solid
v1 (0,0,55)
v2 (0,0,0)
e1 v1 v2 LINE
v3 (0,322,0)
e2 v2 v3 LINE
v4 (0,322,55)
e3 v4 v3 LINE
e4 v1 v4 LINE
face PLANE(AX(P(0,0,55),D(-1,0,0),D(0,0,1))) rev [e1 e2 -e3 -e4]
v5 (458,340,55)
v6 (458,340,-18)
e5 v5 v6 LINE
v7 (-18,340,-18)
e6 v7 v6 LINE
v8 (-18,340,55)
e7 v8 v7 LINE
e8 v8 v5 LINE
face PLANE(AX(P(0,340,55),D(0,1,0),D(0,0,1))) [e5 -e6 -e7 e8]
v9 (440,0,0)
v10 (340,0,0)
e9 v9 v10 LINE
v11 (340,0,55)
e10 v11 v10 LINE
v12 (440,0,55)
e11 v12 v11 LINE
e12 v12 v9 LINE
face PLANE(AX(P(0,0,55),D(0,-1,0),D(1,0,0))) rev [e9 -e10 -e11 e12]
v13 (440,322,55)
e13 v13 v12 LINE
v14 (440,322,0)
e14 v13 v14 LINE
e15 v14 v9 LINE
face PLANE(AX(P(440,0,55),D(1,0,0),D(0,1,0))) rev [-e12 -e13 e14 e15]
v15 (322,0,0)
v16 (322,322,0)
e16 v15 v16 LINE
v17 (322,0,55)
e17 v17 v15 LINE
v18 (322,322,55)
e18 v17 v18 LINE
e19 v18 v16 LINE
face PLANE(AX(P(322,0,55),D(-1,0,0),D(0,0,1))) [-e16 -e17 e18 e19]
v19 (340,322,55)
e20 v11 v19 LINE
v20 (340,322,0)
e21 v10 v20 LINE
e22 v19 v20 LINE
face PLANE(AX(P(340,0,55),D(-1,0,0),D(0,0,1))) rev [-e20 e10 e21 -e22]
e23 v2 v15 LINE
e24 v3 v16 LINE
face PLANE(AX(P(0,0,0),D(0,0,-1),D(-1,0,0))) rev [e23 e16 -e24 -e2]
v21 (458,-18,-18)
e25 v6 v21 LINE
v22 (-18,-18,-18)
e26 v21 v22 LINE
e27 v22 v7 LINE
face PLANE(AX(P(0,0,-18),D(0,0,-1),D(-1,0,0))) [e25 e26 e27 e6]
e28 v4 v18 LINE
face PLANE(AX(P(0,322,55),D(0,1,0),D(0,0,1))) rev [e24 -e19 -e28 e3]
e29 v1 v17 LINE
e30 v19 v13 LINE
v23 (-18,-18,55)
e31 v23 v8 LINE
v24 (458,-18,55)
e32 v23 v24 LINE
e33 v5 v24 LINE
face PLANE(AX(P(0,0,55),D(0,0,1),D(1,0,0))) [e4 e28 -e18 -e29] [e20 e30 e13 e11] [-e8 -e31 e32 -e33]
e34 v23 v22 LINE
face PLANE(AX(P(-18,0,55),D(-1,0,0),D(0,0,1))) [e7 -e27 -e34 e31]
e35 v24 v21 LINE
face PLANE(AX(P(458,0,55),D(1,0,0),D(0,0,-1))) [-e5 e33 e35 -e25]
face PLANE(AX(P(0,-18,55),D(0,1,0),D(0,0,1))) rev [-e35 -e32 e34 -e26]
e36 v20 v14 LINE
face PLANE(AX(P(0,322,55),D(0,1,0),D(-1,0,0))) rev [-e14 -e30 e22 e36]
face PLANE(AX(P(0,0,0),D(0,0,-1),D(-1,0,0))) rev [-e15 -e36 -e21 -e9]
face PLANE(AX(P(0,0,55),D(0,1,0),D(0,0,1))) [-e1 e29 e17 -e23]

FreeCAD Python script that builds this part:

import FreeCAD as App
import Part
import Sketcher

V = App.Vector
Q = App.Units.Quantity


def add_polygon(sketch, points):
    """Adds a closed chain of lines whose ends are joined by coincident constraints."""
    first, n = sketch.GeometryCount, len(points)
    for a, b in zip(points, points[1:] + points[:1]):
        sketch.addGeometry(Part.LineSegment(App.Vector(*a, 0), App.Vector(*b, 0)), False)
    for i in range(n):
        sketch.addConstraint(Sketcher.Constraint("Coincident", first + i, 2, first + (i + 1) % n, 1))

doc = App.newDocument("Part")
body = doc.addObject("PartDesign::Body", "Body")

# Sketch on XY plane
sketch1 = doc.addObject("Sketcher::SketchObject", "Sketch")
body.addObject(sketch1)
sketch1.AttachmentSupport = (doc.XY_Plane, [""])
sketch1.MapMode = "FlatFace"
add_polygon(sketch1, [(-18, -18), (458, -18), (458, 340), (-18, 340)])  # lines 0-3
add_polygon(sketch1, [(322, 0), (0, 0), (0, 322), (322, 322)])  # lines 4-7
add_polygon(sketch1, [(440, 0), (340, 0), (340, 322), (440, 322)])  # lines 8-11
sketch1.addConstraint(Sketcher.Constraint("Horizontal", 0))
sketch1.addConstraint(Sketcher.Constraint("Vertical", 1))
sketch1.addConstraint(Sketcher.Constraint("Horizontal", 2))
sketch1.addConstraint(Sketcher.Constraint("Vertical", 3))
sketch1.addConstraint(Sketcher.Constraint("Horizontal", 4))
sketch1.addConstraint(Sketcher.Constraint("Vertical", 5))
sketch1.addConstraint(Sketcher.Constraint("Horizontal", 6))
sketch1.addConstraint(Sketcher.Constraint("Vertical", 7))
sketch1.addConstraint(Sketcher.Constraint("Horizontal", 8))
sketch1.addConstraint(Sketcher.Constraint("Vertical", 9))
sketch1.addConstraint(Sketcher.Constraint("Horizontal", 10))
sketch1.addConstraint(Sketcher.Constraint("Vertical", 11))
sketch1.addConstraint(Sketcher.Constraint("Coincident", 4, 2, -1, 1))
sketch1.addConstraint(Sketcher.Constraint("PointOnObject", 8, 2, -1))
sketch1.addConstraint(Sketcher.Constraint("Horizontal", 6, 2, 9, 2))
sketch1.addConstraint(Sketcher.Constraint("Equal", 6, 5))
sketch1.addConstraint(Sketcher.Constraint("DistanceX", 0, 1, 0, 2, Q("476 mm")))
sketch1.addConstraint(Sketcher.Constraint("DistanceX", 4, 2, 4, 1, Q("322 mm")))
sketch1.addConstraint(Sketcher.Constraint("DistanceX", 8, 2, 8, 1, Q("100 mm")))
sketch1.addConstraint(Sketcher.Constraint("DistanceY", 1, 1, 1, 2, Q("358 mm")))
sketch1.addConstraint(Sketcher.Constraint("DistanceX", -1, 1, 0, 2, Q("458 mm")))
sketch1.addConstraint(Sketcher.Constraint("DistanceY", 0, 2, -1, 1, Q("18 mm")))
sketch1.addConstraint(Sketcher.Constraint("DistanceX", -1, 1, 8, 2, Q("340 mm")))
pad1 = doc.addObject("PartDesign::Pad", "Pad")
body.addObject(pad1)
pad1.Profile = sketch1
pad1.Length = 55

# Sketch on XY plane
sketch2 = doc.addObject("Sketcher::SketchObject", "Sketch001")
body.addObject(sketch2)
sketch2.AttachmentSupport = (doc.XY_Plane, [""])
sketch2.MapMode = "FlatFace"
add_polygon(sketch2, [(458, 340), (458, -18), (-18, -18), (-18, 340)])  # lines 0-3
sketch2.addConstraint(Sketcher.Constraint("Vertical", 0))
sketch2.addConstraint(Sketcher.Constraint("Horizontal", 1))
sketch2.addConstraint(Sketcher.Constraint("Vertical", 2))
sketch2.addConstraint(Sketcher.Constraint("Horizontal", 3))
sketch2.addConstraint(Sketcher.Constraint("DistanceX", 1, 2, 1, 1, Q("476 mm")))
sketch2.addConstraint(Sketcher.Constraint("DistanceY", 0, 2, 0, 1, Q("358 mm")))
sketch2.addConstraint(Sketcher.Constraint("DistanceX", -1, 1, 0, 2, Q("458 mm")))
sketch2.addConstraint(Sketcher.Constraint("DistanceY", 0, 2, -1, 1, Q("18 mm")))
pad2 = doc.addObject("PartDesign::Pad", "Pad001")
body.addObject(pad2)
pad2.Profile = sketch2
pad2.Length = 18
pad2.Reversed = True

doc.recompute()
